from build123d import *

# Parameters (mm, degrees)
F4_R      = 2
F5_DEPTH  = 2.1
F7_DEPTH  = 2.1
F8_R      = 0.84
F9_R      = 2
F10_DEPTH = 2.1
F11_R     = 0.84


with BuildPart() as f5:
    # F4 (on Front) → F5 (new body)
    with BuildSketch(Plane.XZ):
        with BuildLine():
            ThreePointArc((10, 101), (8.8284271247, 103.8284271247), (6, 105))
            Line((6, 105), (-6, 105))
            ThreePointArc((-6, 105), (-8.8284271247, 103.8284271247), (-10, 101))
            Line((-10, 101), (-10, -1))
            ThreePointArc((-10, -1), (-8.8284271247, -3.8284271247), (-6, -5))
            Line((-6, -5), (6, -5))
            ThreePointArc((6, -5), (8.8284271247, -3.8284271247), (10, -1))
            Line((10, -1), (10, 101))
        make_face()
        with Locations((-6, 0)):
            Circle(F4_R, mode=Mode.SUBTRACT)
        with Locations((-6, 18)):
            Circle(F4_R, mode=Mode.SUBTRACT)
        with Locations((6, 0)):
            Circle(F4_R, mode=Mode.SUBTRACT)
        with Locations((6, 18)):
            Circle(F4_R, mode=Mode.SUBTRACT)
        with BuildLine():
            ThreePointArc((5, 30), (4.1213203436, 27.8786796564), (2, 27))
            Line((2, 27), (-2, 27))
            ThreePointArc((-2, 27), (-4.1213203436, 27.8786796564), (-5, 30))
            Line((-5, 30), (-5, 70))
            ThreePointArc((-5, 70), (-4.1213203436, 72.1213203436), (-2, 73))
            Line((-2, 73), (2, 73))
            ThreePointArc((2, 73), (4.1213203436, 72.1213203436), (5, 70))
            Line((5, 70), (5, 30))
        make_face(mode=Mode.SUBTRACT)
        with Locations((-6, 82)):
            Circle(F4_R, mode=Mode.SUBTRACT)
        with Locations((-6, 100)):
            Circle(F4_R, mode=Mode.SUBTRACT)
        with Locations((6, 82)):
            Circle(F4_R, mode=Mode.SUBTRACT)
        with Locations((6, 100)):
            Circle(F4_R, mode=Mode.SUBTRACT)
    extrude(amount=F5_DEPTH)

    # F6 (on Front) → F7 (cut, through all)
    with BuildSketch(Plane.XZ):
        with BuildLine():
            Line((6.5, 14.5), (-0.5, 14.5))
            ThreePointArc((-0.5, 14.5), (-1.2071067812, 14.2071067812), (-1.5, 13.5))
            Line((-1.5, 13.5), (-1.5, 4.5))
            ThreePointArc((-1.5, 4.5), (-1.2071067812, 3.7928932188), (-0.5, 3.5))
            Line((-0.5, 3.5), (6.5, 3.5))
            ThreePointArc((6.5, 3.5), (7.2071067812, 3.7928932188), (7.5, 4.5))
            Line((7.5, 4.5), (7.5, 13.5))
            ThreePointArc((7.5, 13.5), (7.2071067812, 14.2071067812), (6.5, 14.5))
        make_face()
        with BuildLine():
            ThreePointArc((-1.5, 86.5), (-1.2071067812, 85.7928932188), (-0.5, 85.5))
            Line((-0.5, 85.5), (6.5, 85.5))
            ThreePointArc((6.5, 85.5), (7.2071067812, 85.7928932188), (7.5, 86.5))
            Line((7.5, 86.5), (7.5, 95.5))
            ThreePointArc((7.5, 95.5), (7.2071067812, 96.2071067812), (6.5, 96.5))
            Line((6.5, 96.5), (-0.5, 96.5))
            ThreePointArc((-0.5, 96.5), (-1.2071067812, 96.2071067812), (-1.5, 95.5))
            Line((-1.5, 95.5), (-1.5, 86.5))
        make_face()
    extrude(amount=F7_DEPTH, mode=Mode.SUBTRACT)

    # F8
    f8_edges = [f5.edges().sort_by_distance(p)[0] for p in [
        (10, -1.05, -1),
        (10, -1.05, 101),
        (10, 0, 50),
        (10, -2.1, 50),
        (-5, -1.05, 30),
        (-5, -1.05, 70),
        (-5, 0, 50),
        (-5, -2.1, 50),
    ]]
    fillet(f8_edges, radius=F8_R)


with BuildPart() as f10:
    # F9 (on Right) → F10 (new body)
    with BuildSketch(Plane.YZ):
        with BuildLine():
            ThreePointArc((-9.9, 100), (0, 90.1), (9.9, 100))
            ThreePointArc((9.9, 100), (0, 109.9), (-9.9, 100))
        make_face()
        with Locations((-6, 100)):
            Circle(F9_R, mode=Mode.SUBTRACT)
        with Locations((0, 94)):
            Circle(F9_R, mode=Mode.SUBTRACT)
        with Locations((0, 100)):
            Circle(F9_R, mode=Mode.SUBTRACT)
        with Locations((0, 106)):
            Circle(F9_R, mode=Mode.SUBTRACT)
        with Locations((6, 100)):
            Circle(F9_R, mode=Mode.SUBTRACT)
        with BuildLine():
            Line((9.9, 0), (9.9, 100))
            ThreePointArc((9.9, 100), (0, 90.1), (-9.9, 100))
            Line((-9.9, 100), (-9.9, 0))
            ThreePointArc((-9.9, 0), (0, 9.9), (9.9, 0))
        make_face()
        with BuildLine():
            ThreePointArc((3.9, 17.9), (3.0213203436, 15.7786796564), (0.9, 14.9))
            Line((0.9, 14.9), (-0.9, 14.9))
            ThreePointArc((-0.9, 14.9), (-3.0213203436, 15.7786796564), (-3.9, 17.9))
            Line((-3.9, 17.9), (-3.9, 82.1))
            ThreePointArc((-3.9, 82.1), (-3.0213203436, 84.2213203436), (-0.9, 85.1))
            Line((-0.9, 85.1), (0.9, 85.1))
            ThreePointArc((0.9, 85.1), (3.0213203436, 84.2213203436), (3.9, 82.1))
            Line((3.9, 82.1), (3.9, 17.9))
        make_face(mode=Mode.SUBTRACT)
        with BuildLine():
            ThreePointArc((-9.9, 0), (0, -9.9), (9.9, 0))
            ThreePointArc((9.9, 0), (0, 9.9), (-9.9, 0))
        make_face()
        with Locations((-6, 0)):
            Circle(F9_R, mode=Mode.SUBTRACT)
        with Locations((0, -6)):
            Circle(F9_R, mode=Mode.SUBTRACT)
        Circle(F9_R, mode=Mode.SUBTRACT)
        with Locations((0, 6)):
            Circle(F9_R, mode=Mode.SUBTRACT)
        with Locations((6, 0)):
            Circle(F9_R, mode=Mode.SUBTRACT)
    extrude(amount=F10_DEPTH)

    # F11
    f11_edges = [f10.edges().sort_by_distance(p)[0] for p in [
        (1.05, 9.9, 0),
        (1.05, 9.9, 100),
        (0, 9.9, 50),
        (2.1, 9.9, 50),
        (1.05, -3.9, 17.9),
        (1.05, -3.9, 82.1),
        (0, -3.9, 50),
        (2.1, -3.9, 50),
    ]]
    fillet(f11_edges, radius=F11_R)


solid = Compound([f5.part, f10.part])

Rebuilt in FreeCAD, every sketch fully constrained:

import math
import FreeCAD as App
import Part
import Sketcher
from FreeCAD import Vector
Q = App.Units.Quantity


def edges_at(feature, points):
    """Names of the edges that pass closest to the given points."""
    edges = feature.Shape.Edges
    near = lambda p: min(range(len(edges)), key=lambda i: edges[i].distToShape(Part.Vertex(*p))[0])
    return sorted({f"Edge{near(p) + 1}" for p in points})

doc = App.newDocument("Part")
params = doc.addObject("Spreadsheet::Sheet", "Params")
for row, (alias, value) in enumerate([
    ("sketch1_diameter", "4 mm"),
    ("sketch1_radius", "4 mm"),
    ("sketch1_radius2", "3 mm"),
    ("sketch1_width", "12 mm"),
    ("sketch1_width2", "4 mm"),
    ("pad1_length", "2.1 mm"),
    ("sketch2_radius", "1 mm"),
    ("sketch2_width", "7 mm"),
    ("sketch2_height", "9 mm"),
    ("fillet_radius", "0.84 mm"),
    ("sketch3_diameter", "4 mm"),
    ("sketch3_radius", "3 mm"),
    ("sketch3_radius2", "9.9 mm"),
    ("sketch3_height", "100 mm"),
    ("sketch3_width", "1.8 mm"),
    ("pad2_length", "2.1 mm"),
    ("fillet2_radius", "0.84 mm"),
], start=1):
    params.set(f"A{row}", alias)
    params.set(f"B{row}", "=" + value)
    params.setAlias(f"B{row}", alias)

body = doc.addObject("PartDesign::Body", "Body")

sketch1 = body.newObject("Sketcher::SketchObject", "Sketch")
sketch1.AttachmentSupport = (doc.getObject("XZ_Plane"), [""])
sketch1.MapMode = "FlatFace"
sketch1.addGeometry(Part.ArcOfCircle(Part.Circle(Vector(6, 101, 0), Vector(0, 0, 1), 4), math.radians(0), math.radians(90)), False)
sketch1.addGeometry(Part.LineSegment(Vector(6, 105, 0), Vector(-6, 105, 0)), False)
sketch1.addGeometry(Part.ArcOfCircle(Part.Circle(Vector(-6, 101, 0), Vector(0, 0, 1), 4), math.radians(90), math.radians(180)), False)
sketch1.addGeometry(Part.LineSegment(Vector(-10, 101, 0), Vector(-10, -1, 0)), False)
sketch1.addGeometry(Part.ArcOfCircle(Part.Circle(Vector(-6, -1, 0), Vector(0, 0, 1), 4), math.radians(180), math.radians(270)), False)
sketch1.addGeometry(Part.LineSegment(Vector(-6, -5, 0), Vector(6, -5, 0)), False)
sketch1.addGeometry(Part.ArcOfCircle(Part.Circle(Vector(6, -1, 0), Vector(0, 0, 1), 4), math.radians(-90), math.radians(0)), False)
sketch1.addGeometry(Part.LineSegment(Vector(10, -1, 0), Vector(10, 101, 0)), False)
sketch1.addGeometry(Part.Circle(Vector(-6, 0, 0), Vector(0, 0, 1), 2), False)
sketch1.addGeometry(Part.Circle(Vector(-6, 18, 0), Vector(0, 0, 1), 2), False)
sketch1.addGeometry(Part.Circle(Vector(6, 0, 0), Vector(0, 0, 1), 2), False)
sketch1.addGeometry(Part.Circle(Vector(6, 18, 0), Vector(0, 0, 1), 2), False)
sketch1.addGeometry(Part.LineSegment(Vector(5, 70, 0), Vector(5, 30, 0)), False)
sketch1.addGeometry(Part.ArcOfCircle(Part.Circle(Vector(2, 30, 0), Vector(0, 0, 1), 3), math.radians(-90), math.radians(0)), False)
sketch1.addGeometry(Part.LineSegment(Vector(2, 27, 0), Vector(-2, 27, 0)), False)
sketch1.addGeometry(Part.ArcOfCircle(Part.Circle(Vector(-2, 30, 0), Vector(0, 0, 1), 3), math.radians(180), math.radians(270)), False)
sketch1.addGeometry(Part.LineSegment(Vector(-5, 30, 0), Vector(-5, 70, 0)), False)
sketch1.addGeometry(Part.ArcOfCircle(Part.Circle(Vector(-2, 70, 0), Vector(0, 0, 1), 3), math.radians(90), math.radians(180)), False)
sketch1.addGeometry(Part.LineSegment(Vector(-2, 73, 0), Vector(2, 73, 0)), False)
sketch1.addGeometry(Part.ArcOfCircle(Part.Circle(Vector(2, 70, 0), Vector(0, 0, 1), 3), math.radians(0), math.radians(90)), False)
sketch1.addGeometry(Part.Circle(Vector(-6, 82, 0), Vector(0, 0, 1), 2), False)
sketch1.addGeometry(Part.Circle(Vector(-6, 100, 0), Vector(0, 0, 1), 2), False)
sketch1.addGeometry(Part.Circle(Vector(6, 82, 0), Vector(0, 0, 1), 2), False)
sketch1.addGeometry(Part.Circle(Vector(6, 100, 0), Vector(0, 0, 1), 2), False)
sketch1.addConstraint(Sketcher.Constraint("Tangent", 0, 2, 1, 1))
sketch1.addConstraint(Sketcher.Constraint("Tangent", 1, 2, 2, 1))
sketch1.addConstraint(Sketcher.Constraint("Tangent", 2, 2, 3, 1))
sketch1.addConstraint(Sketcher.Constraint("Tangent", 3, 2, 4, 1))
sketch1.addConstraint(Sketcher.Constraint("Tangent", 4, 2, 5, 1))
sketch1.addConstraint(Sketcher.Constraint("Tangent", 5, 2, 6, 1))
sketch1.addConstraint(Sketcher.Constraint("Tangent", 6, 2, 7, 1))
sketch1.addConstraint(Sketcher.Constraint("Tangent", 7, 2, 0, 1))
sketch1.addConstraint(Sketcher.Constraint("Tangent", 12, 2, 13, 2))
sketch1.addConstraint(Sketcher.Constraint("Tangent", 13, 1, 14, 1))
sketch1.addConstraint(Sketcher.Constraint("Tangent", 14, 2, 15, 2))
sketch1.addConstraint(Sketcher.Constraint("Tangent", 15, 1, 16, 1))
sketch1.addConstraint(Sketcher.Constraint("Tangent", 16, 2, 17, 2))
sketch1.addConstraint(Sketcher.Constraint("Tangent", 17, 1, 18, 1))
sketch1.addConstraint(Sketcher.Constraint("Tangent", 18, 2, 19, 2))
sketch1.addConstraint(Sketcher.Constraint("Tangent", 19, 1, 12, 1))
sketch1.addConstraint(Sketcher.Constraint("Horizontal", 1))
sketch1.addConstraint(Sketcher.Constraint("Vertical", 3))
sketch1.addConstraint(Sketcher.Constraint("Horizontal", 5))
sketch1.addConstraint(Sketcher.Constraint("Vertical", 7))
sketch1.addConstraint(Sketcher.Constraint("Vertical", 12))
sketch1.addConstraint(Sketcher.Constraint("Horizontal", 14))
sketch1.addConstraint(Sketcher.Constraint("Vertical", 16))
sketch1.addConstraint(Sketcher.Constraint("Horizontal", 18))
sketch1.addConstraint(Sketcher.Constraint("Equal", 0, 2))
sketch1.addConstraint(Sketcher.Constraint("Equal", 2, 4))
sketch1.addConstraint(Sketcher.Constraint("Equal", 4, 6))
sketch1.addConstraint(Sketcher.Constraint("Equal", 8, 9))
sketch1.addConstraint(Sketcher.Constraint("Equal", 9, 10))
sketch1.addConstraint(Sketcher.Constraint("Equal", 10, 11))
sketch1.addConstraint(Sketcher.Constraint("Equal", 13, 15))
sketch1.addConstraint(Sketcher.Constraint("Equal", 15, 17))
sketch1.addConstraint(Sketcher.Constraint("Equal", 17, 19))
sketch1.addConstraint(Sketcher.Constraint("Equal", 11, 20))
sketch1.addConstraint(Sketcher.Constraint("Equal", 20, 21))
sketch1.addConstraint(Sketcher.Constraint("Equal", 21, 22))
sketch1.addConstraint(Sketcher.Constraint("Equal", 22, 23))
sketch1.addConstraint(Sketcher.Constraint("Symmetric", 8, 3, 10, 3, -1, 1))
sketch1.addConstraint(Sketcher.Constraint("Symmetric", 9, 3, 11, 3, -2))
sketch1.addConstraint(Sketcher.Constraint("Symmetric", 20, 3, 22, 3, -2))
sketch1.addConstraint(Sketcher.Constraint("Symmetric", 21, 3, 23, 3, -2))
sketch1.addConstraint(Sketcher.Constraint("PointOnObject", 8, 3, -1))
sketch1.addConstraint(Sketcher.Constraint("Vertical", 4, 3, 8, 3))
sketch1.addConstraint(Sketcher.Constraint("Vertical", 8, 3, 9, 3))
sketch1.addConstraint(Sketcher.Constraint("Vertical", 6, 3, 10, 3))
sketch1.addConstraint(Sketcher.Constraint("Vertical", 9, 3, 20, 3))
sketch1.addConstraint(Sketcher.Constraint("Vertical", 20, 3, 21, 3))
sketch1.addConstraint(Sketcher.Constraint("Diameter", 8, Q("4 mm")))
sketch1.addConstraint(Sketcher.Constraint("Radius", 0, Q("4 mm")))
sketch1.addConstraint(Sketcher.Constraint("Radius", 13, Q("3 mm")))
sketch1.addConstraint(Sketcher.Constraint("DistanceX", 1, 2, 1, 1, Q("12 mm")))
sketch1.addConstraint(Sketcher.Constraint("DistanceX", 14, 2, 14, 1, Q("4 mm")))
sketch1.addConstraint(Sketcher.Constraint("DistanceY", 3, 2, 3, 1, Q("102 mm")))
sketch1.addConstraint(Sketcher.Constraint("DistanceY", 12, 2, 12, 1, Q("40 mm")))
sketch1.addConstraint(Sketcher.Constraint("DistanceY", -1, 1, 0, 3, Q("101 mm")))
sketch1.addConstraint(Sketcher.Constraint("DistanceY", -1, 1, 9, 3, Q("18 mm")))
sketch1.addConstraint(Sketcher.Constraint("DistanceX", -1, 1, 13, 3, Q("2 mm")))
sketch1.addConstraint(Sketcher.Constraint("DistanceY", -1, 1, 13, 3, Q("30 mm")))
sketch1.addConstraint(Sketcher.Constraint("DistanceY", -1, 1, 20, 3, Q("82 mm")))
sketch1.addConstraint(Sketcher.Constraint("DistanceY", -1, 1, 21, 3, Q("100 mm")))
sketch1.setExpression("Constraints[47]", "Params.sketch1_diameter")
sketch1.setExpression("Constraints[48]", "Params.sketch1_radius")
sketch1.setExpression("Constraints[49]", "Params.sketch1_radius2")
sketch1.setExpression("Constraints[50]", "Params.sketch1_width")
sketch1.setExpression("Constraints[51]", "Params.sketch1_width2")
pad1 = body.newObject("PartDesign::Pad", "Pad")
pad1.Profile = sketch1
pad1.setExpression("Length", "Params.pad1_length")

sketch2 = body.newObject("Sketcher::SketchObject", "Sketch001")
sketch2.AttachmentSupport = (doc.getObject("XZ_Plane"), [""])
sketch2.MapMode = "FlatFace"
sketch2.addGeometry(Part.LineSegment(Vector(6.5, 14.5, 0), Vector(-0.5, 14.5, 0)), False)
sketch2.addGeometry(Part.ArcOfCircle(Part.Circle(Vector(-0.5, 13.5, 0), Vector(0, 0, 1), 1), math.radians(90), math.radians(180)), False)
sketch2.addGeometry(Part.LineSegment(Vector(-1.5, 13.5, 0), Vector(-1.5, 4.5, 0)), False)
sketch2.addGeometry(Part.ArcOfCircle(Part.Circle(Vector(-0.5, 4.5, 0), Vector(0, 0, 1), 1), math.radians(180), math.radians(270)), False)
sketch2.addGeometry(Part.LineSegment(Vector(-0.5, 3.5, 0), Vector(6.5, 3.5, 0)), False)
sketch2.addGeometry(Part.ArcOfCircle(Part.Circle(Vector(6.5, 4.5, 0), Vector(0, 0, 1), 1), math.radians(-90), math.radians(0)), False)
sketch2.addGeometry(Part.LineSegment(Vector(7.5, 4.5, 0), Vector(7.5, 13.5, 0)), False)
sketch2.addGeometry(Part.ArcOfCircle(Part.Circle(Vector(6.5, 13.5, 0), Vector(0, 0, 1), 1), math.radians(0), math.radians(90)), False)
sketch2.addGeometry(Part.ArcOfCircle(Part.Circle(Vector(-0.5, 86.5, 0), Vector(0, 0, 1), 1), math.radians(180), math.radians(270)), False)
sketch2.addGeometry(Part.LineSegment(Vector(-0.5, 85.5, 0), Vector(6.5, 85.5, 0)), False)
sketch2.addGeometry(Part.ArcOfCircle(Part.Circle(Vector(6.5, 86.5, 0), Vector(0, 0, 1), 1), math.radians(-90), math.radians(0)), False)
sketch2.addGeometry(Part.LineSegment(Vector(7.5, 86.5, 0), Vector(7.5, 95.5, 0)), False)
sketch2.addGeometry(Part.ArcOfCircle(Part.Circle(Vector(6.5, 95.5, 0), Vector(0, 0, 1), 1), math.radians(0), math.radians(90)), False)
sketch2.addGeometry(Part.LineSegment(Vector(6.5, 96.5, 0), Vector(-0.5, 96.5, 0)), False)
sketch2.addGeometry(Part.ArcOfCircle(Part.Circle(Vector(-0.5, 95.5, 0), Vector(0, 0, 1), 1), math.radians(90), math.radians(180)), False)
sketch2.addGeometry(Part.LineSegment(Vector(-1.5, 95.5, 0), Vector(-1.5, 86.5, 0)), False)
sketch2.addConstraint(Sketcher.Constraint("Tangent", 0, 2, 1, 1))
sketch2.addConstraint(Sketcher.Constraint("Tangent", 1, 2, 2, 1))
sketch2.addConstraint(Sketcher.Constraint("Tangent", 2, 2, 3, 1))
sketch2.addConstraint(Sketcher.Constraint("Tangent", 3, 2, 4, 1))
sketch2.addConstraint(Sketcher.Constraint("Tangent", 4, 2, 5, 1))
sketch2.addConstraint(Sketcher.Constraint("Tangent", 5, 2, 6, 1))
sketch2.addConstraint(Sketcher.Constraint("Tangent", 6, 2, 7, 1))
sketch2.addConstraint(Sketcher.Constraint("Tangent", 7, 2, 0, 1))
sketch2.addConstraint(Sketcher.Constraint("Tangent", 8, 2, 9, 1))
sketch2.addConstraint(Sketcher.Constraint("Tangent", 9, 2, 10, 1))
sketch2.addConstraint(Sketcher.Constraint("Tangent", 10, 2, 11, 1))
sketch2.addConstraint(Sketcher.Constraint("Tangent", 11, 2, 12, 1))
sketch2.addConstraint(Sketcher.Constraint("Tangent", 12, 2, 13, 1))
sketch2.addConstraint(Sketcher.Constraint("Tangent", 13, 2, 14, 1))
sketch2.addConstraint(Sketcher.Constraint("Tangent", 14, 2, 15, 1))
sketch2.addConstraint(Sketcher.Constraint("Tangent", 15, 2, 8, 1))
sketch2.addConstraint(Sketcher.Constraint("Horizontal", 0))
sketch2.addConstraint(Sketcher.Constraint("Vertical", 2))
sketch2.addConstraint(Sketcher.Constraint("Horizontal", 4))
sketch2.addConstraint(Sketcher.Constraint("Vertical", 6))
sketch2.addConstraint(Sketcher.Constraint("Horizontal", 9))
sketch2.addConstraint(Sketcher.Constraint("Vertical", 11))
sketch2.addConstraint(Sketcher.Constraint("Horizontal", 13))
sketch2.addConstraint(Sketcher.Constraint("Vertical", 15))
sketch2.addConstraint(Sketcher.Constraint("Equal", 1, 3))
sketch2.addConstraint(Sketcher.Constraint("Equal", 3, 5))
sketch2.addConstraint(Sketcher.Constraint("Equal", 5, 7))
sketch2.addConstraint(Sketcher.Constraint("Equal", 7, 8))
sketch2.addConstraint(Sketcher.Constraint("Equal", 8, 10))
sketch2.addConstraint(Sketcher.Constraint("Equal", 10, 12))
sketch2.addConstraint(Sketcher.Constraint("Equal", 12, 14))
sketch2.addConstraint(Sketcher.Constraint("Vertical", 3, 3, 8, 3))
sketch2.addConstraint(Sketcher.Constraint("Vertical", 7, 3, 10, 3))
sketch2.addConstraint(Sketcher.Constraint("Equal", 6, 11))
sketch2.addConstraint(Sketcher.Constraint("Radius", 1, Q("1 mm")))
sketch2.addConstraint(Sketcher.Constraint("DistanceX", 0, 2, 0, 1, Q("7 mm")))
sketch2.addConstraint(Sketcher.Constraint("DistanceY", 2, 2, 2, 1, Q("9 mm")))
sketch2.addConstraint(Sketcher.Constraint("DistanceY", 1, 3, 8, 3, Q("73 mm")))
sketch2.addConstraint(Sketcher.Constraint("DistanceX", 1, 3, -1, 1, Q("0.5 mm")))
sketch2.addConstraint(Sketcher.Constraint("DistanceY", -1, 1, 1, 3, Q("13.5 mm")))
sketch2.setExpression("Constraints[34]", "Params.sketch2_radius")
sketch2.setExpression("Constraints[35]", "Params.sketch2_width")
sketch2.setExpression("Constraints[36]", "Params.sketch2_height")
pocket1 = body.newObject("PartDesign::Pocket", "Pocket")
pocket1.Profile = sketch2
pocket1.Type = "ThroughAll"
pocket1.Reversed = True
doc.recompute()

fillet = body.newObject("PartDesign::Fillet", "Fillet")
fillet.Base = (pocket1, edges_at(pocket1, [
    (10, -1.05, -1),
    (10, -1.05, 101),
    (10, 0, 50),
    (10, -2.1, 50),
    (-5, -1.05, 30),
    (-5, -1.05, 70),
    (-5, 0, 50),
    (-5, -2.1, 50),
]))
fillet.setExpression("Radius", "Params.fillet_radius")
body2 = doc.addObject("PartDesign::Body", "Body001")

sketch3 = body2.newObject("Sketcher::SketchObject", "Sketch002")
sketch3.AttachmentSupport = (doc.getObject("YZ_Plane001"), [""])
sketch3.MapMode = "FlatFace"
sketch3.addGeometry(Part.ArcOfCircle(Part.Circle(Vector(0, 100, 0), Vector(0, 0, 1), 9.9), math.radians(0), math.radians(180)), False)
sketch3.addGeometry(Part.LineSegment(Vector(-9.9, 100, 0), Vector(-9.9, 0, 0)), False)
sketch3.addGeometry(Part.ArcOfCircle(Part.Circle(Vector(0, 0, 0), Vector(0, 0, 1), 9.9), math.radians(180), math.radians(360)), False)
sketch3.addGeometry(Part.LineSegment(Vector(9.9, 0, 0), Vector(9.9, 100, 0)), False)
sketch3.addGeometry(Part.Circle(Vector(-6, 0, 0), Vector(0, 0, 1), 2), False)
sketch3.addGeometry(Part.Circle(Vector(0, -6, 0), Vector(0, 0, 1), 2), False)
sketch3.addGeometry(Part.Circle(Vector(0, 0, 0), Vector(0, 0, 1), 2), False)
sketch3.addGeometry(Part.Circle(Vector(0, 6, 0), Vector(0, 0, 1), 2), False)
sketch3.addGeometry(Part.Circle(Vector(6, 0, 0), Vector(0, 0, 1), 2), False)
sketch3.addGeometry(Part.Circle(Vector(-6, 100, 0), Vector(0, 0, 1), 2), False)
sketch3.addGeometry(Part.LineSegment(Vector(3.9, 82.1, 0), Vector(3.9, 17.9, 0)), False)
sketch3.addGeometry(Part.ArcOfCircle(Part.Circle(Vector(0.9, 17.9, 0), Vector(0, 0, 1), 3), math.radians(-90), math.radians(0)), False)
sketch3.addGeometry(Part.LineSegment(Vector(0.9, 14.9, 0), Vector(-0.9, 14.9, 0)), False)
sketch3.addGeometry(Part.ArcOfCircle(Part.Circle(Vector(-0.9, 17.9, 0), Vector(0, 0, 1), 3), math.radians(180), math.radians(270)), False)
sketch3.addGeometry(Part.LineSegment(Vector(-3.9, 17.9, 0), Vector(-3.9, 82.1, 0)), False)
sketch3.addGeometry(Part.ArcOfCircle(Part.Circle(Vector(-0.9, 82.1, 0), Vector(0, 0, 1), 3), math.radians(90), math.radians(180)), False)
sketch3.addGeometry(Part.LineSegment(Vector(-0.9, 85.1, 0), Vector(0.9, 85.1, 0)), False)
sketch3.addGeometry(Part.ArcOfCircle(Part.Circle(Vector(0.9, 82.1, 0), Vector(0, 0, 1), 3), math.radians(0), math.radians(90)), False)
sketch3.addGeometry(Part.Circle(Vector(0, 94, 0), Vector(0, 0, 1), 2), False)
sketch3.addGeometry(Part.Circle(Vector(0, 100, 0), Vector(0, 0, 1), 2), False)
sketch3.addGeometry(Part.Circle(Vector(0, 106, 0), Vector(0, 0, 1), 2), False)
sketch3.addGeometry(Part.Circle(Vector(6, 100, 0), Vector(0, 0, 1), 2), False)
sketch3.addConstraint(Sketcher.Constraint("Tangent", 0, 2, 1, 1))
sketch3.addConstraint(Sketcher.Constraint("Tangent", 1, 2, 2, 1))
sketch3.addConstraint(Sketcher.Constraint("Tangent", 2, 2, 3, 1))
sketch3.addConstraint(Sketcher.Constraint("Tangent", 3, 2, 0, 1))
sketch3.addConstraint(Sketcher.Constraint("Tangent", 10, 2, 11, 2))
sketch3.addConstraint(Sketcher.Constraint("Tangent", 11, 1, 12, 1))
sketch3.addConstraint(Sketcher.Constraint("Tangent", 12, 2, 13, 2))
sketch3.addConstraint(Sketcher.Constraint("Tangent", 13, 1, 14, 1))
sketch3.addConstraint(Sketcher.Constraint("Tangent", 14, 2, 15, 2))
sketch3.addConstraint(Sketcher.Constraint("Tangent", 15, 1, 16, 1))
sketch3.addConstraint(Sketcher.Constraint("Tangent", 16, 2, 17, 2))
sketch3.addConstraint(Sketcher.Constraint("Tangent", 17, 1, 10, 1))
sketch3.addConstraint(Sketcher.Constraint("Vertical", 1))
sketch3.addConstraint(Sketcher.Constraint("Vertical", 3))
sketch3.addConstraint(Sketcher.Constraint("Vertical", 10))
sketch3.addConstraint(Sketcher.Constraint("Horizontal", 12))
sketch3.addConstraint(Sketcher.Constraint("Vertical", 14))
sketch3.addConstraint(Sketcher.Constraint("Horizontal", 16))
sketch3.addConstraint(Sketcher.Constraint("Coincident", 2, 3, -1, 1))
sketch3.addConstraint(Sketcher.Constraint("Coincident", 6, 3, -1, 1))
sketch3.addConstraint(Sketcher.Constraint("Coincident", 19, 3, 0, 3))
sketch3.addConstraint(Sketcher.Constraint("Equal", 4, 5))
sketch3.addConstraint(Sketcher.Constraint("Equal", 5, 6))
sketch3.addConstraint(Sketcher.Constraint("Equal", 6, 7))
sketch3.addConstraint(Sketcher.Constraint("Equal", 7, 8))
sketch3.addConstraint(Sketcher.Constraint("Equal", 8, 9))
sketch3.addConstraint(Sketcher.Constraint("Equal", 11, 13))
sketch3.addConstraint(Sketcher.Constraint("Equal", 13, 15))
sketch3.addConstraint(Sketcher.Constraint("Equal", 15, 17))
sketch3.addConstraint(Sketcher.Constraint("Equal", 9, 18))
sketch3.addConstraint(Sketcher.Constraint("Equal", 18, 19))
sketch3.addConstraint(Sketcher.Constraint("Equal", 19, 20))
sketch3.addConstraint(Sketcher.Constraint("Equal", 20, 21))
sketch3.addConstraint(Sketcher.Constraint("Symmetric", 5, 3, 7, 3, -1, 1))
sketch3.addConstraint(Sketcher.Constraint("Symmetric", 4, 3, 8, 3, -1, 1))
sketch3.addConstraint(Sketcher.Constraint("Symmetric", 9, 3, 21, 3, -2))
sketch3.addConstraint(Sketcher.Constraint("PointOnObject", 4, 3, -1))
sketch3.addConstraint(Sketcher.Constraint("PointOnObject", 5, 3, -2))
sketch3.addConstraint(Sketcher.Constraint("PointOnObject", 18, 3, -2))
sketch3.addConstraint(Sketcher.Constraint("PointOnObject", 20, 3, -2))
sketch3.addConstraint(Sketcher.Constraint("Horizontal", 0, 3, 9, 3))
sketch3.addConstraint(Sketcher.Constraint("Vertical", 4, 3, 9, 3))
sketch3.addConstraint(Sketcher.Constraint("Diameter", 4, Q("4 mm")))
sketch3.addConstraint(Sketcher.Constraint("Radius", 11, Q("3 mm")))
sketch3.addConstraint(Sketcher.Constraint("Radius", 0, Q("9.9 mm")))
sketch3.addConstraint(Sketcher.Constraint("DistanceY", 1, 2, 1, 1, Q("100 mm")))
sketch3.addConstraint(Sketcher.Constraint("DistanceX", 12, 2, 12, 1, Q("1.8 mm")))
sketch3.addConstraint(Sketcher.Constraint("DistanceY", 10, 2, 10, 1, Q("64.2 mm")))
sketch3.addConstraint(Sketcher.Constraint("DistanceX", 4, 3, -1, 1, Q("6 mm")))
sketch3.addConstraint(Sketcher.Constraint("DistanceY", 5, 3, -1, 1, Q("6 mm")))
sketch3.addConstraint(Sketcher.Constraint("DistanceY", -1, 1, 18, 3, Q("94 mm")))
sketch3.addConstraint(Sketcher.Constraint("DistanceY", -1, 1, 20, 3, Q("106 mm")))
sketch3.addConstraint(Sketcher.Constraint("DistanceX", -1, 1, 11, 3, Q("0.9 mm")))
sketch3.addConstraint(Sketcher.Constraint("DistanceY", -1, 1, 11, 3, Q("17.9 mm")))
sketch3.setExpression("Constraints[42]", "Params.sketch3_diameter")
sketch3.setExpression("Constraints[43]", "Params.sketch3_radius")
sketch3.setExpression("Constraints[44]", "Params.sketch3_radius2")
sketch3.setExpression("Constraints[45]", "Params.sketch3_height")
sketch3.setExpression("Constraints[46]", "Params.sketch3_width")
pad2 = body2.newObject("PartDesign::Pad", "Pad001")
pad2.Profile = sketch3
pad2.setExpression("Length", "Params.pad2_length")
doc.recompute()

fillet2 = body2.newObject("PartDesign::Fillet", "Fillet001")
fillet2.Base = (pad2, edges_at(pad2, [
    (1.05, 9.9, 0),
    (1.05, 9.9, 100),
    (0, 9.9, 50),
    (2.1, 9.9, 50),
    (1.05, -3.9, 17.9),
    (1.05, -3.9, 82.1),
    (0, -3.9, 50),
    (2.1, -3.9, 50),
]))
fillet2.setExpression("Radius", "Params.fillet2_radius")

doc.recompute()
